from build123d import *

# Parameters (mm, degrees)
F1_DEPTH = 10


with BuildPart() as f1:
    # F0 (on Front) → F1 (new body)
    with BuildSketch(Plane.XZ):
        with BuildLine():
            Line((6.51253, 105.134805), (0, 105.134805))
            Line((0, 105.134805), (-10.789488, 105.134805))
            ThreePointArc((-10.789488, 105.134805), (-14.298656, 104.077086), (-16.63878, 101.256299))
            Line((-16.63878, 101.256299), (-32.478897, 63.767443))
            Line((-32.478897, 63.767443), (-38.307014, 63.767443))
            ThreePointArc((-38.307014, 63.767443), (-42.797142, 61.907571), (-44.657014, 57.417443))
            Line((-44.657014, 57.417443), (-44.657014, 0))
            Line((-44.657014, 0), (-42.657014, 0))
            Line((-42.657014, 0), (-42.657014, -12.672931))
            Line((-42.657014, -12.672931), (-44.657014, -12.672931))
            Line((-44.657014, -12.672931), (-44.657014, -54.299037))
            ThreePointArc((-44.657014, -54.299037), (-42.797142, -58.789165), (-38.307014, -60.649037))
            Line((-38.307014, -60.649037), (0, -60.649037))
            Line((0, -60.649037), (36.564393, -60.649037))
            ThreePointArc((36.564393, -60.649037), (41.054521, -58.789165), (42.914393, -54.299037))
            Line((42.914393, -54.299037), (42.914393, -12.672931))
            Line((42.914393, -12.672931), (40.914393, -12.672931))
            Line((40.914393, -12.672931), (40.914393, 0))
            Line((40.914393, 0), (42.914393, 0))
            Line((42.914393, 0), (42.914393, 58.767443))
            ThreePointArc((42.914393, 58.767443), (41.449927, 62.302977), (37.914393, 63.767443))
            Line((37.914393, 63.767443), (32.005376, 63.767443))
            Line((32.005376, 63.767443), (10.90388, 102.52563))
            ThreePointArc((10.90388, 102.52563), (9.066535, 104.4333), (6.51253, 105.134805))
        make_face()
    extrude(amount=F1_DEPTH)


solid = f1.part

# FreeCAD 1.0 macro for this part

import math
import FreeCAD as App
import Part
import Sketcher

V = App.Vector

doc = App.newDocument("Part")
body = doc.addObject("PartDesign::Body", "Body")

# Sketch on XZ plane
sketch1 = body.newObject("Sketcher::SketchObject", "Sketch")
sketch1.AttachmentSupport = (doc.getObject("XZ_Plane"), [""])
sketch1.MapMode = "FlatFace"
sketch1.addGeometry([
    Part.LineSegment(V(6.51253, 105.134805, 0), V(-10.789488, 105.134805, 0)),  # 0
    Part.ArcOfCircle(Part.Circle(V(-10.789488, 98.784804, 0), V(0, 0, 1), 6.350001), math.radians(90.000004), math.radians(157.094541)),  # 1
    Part.LineSegment(V(-16.63878, 101.256299, 0), V(-32.478897, 63.767443, 0)),  # 2
    Part.LineSegment(V(-32.478897, 63.767443, 0), V(-38.307014, 63.767443, 0)),  # 3
    Part.ArcOfCircle(Part.Circle(V(-38.307014, 57.417443, 0), V(0, 0, 1), 6.35), math.radians(90.000002), math.radians(179.999998)),  # 4
    Part.LineSegment(V(-44.657014, 57.417443, 0), V(-44.657014, 0, 0)),  # 5
    Part.LineSegment(V(-44.657014, 0, 0), V(-42.657014, 0, 0)),  # 6
    Part.LineSegment(V(-42.657014, 0, 0), V(-42.657014, -12.672931, 0)),  # 7
    Part.LineSegment(V(-42.657014, -12.672931, 0), V(-44.657014, -12.672931, 0)),  # 8
    Part.LineSegment(V(-44.657014, -12.672931, 0), V(-44.657014, -54.299037, 0)),  # 9
    Part.ArcOfCircle(Part.Circle(V(-38.307014, -54.299037, 0), V(0, 0, 1), 6.35), math.radians(-179.999998), math.radians(-90.000002)),  # 10
    Part.LineSegment(V(-38.307014, -60.649037, 0), V(36.564393, -60.649037, 0)),  # 11
    Part.ArcOfCircle(Part.Circle(V(36.564393, -54.299037, 0), V(0, 0, 1), 6.35), math.radians(-89.999998), math.radians(-0.000002)),  # 12
    Part.LineSegment(V(42.914393, -54.299037, 0), V(42.914393, -12.672931, 0)),  # 13
    Part.LineSegment(V(42.914393, -12.672931, 0), V(40.914393, -12.672931, 0)),  # 14
    Part.LineSegment(V(40.914393, -12.672931, 0), V(40.914393, 0, 0)),  # 15
    Part.LineSegment(V(40.914393, 0, 0), V(42.914393, 0, 0)),  # 16
    Part.LineSegment(V(42.914393, 0, 0), V(42.914393, 58.767443, 0)),  # 17
    Part.ArcOfCircle(Part.Circle(V(37.914393, 58.767443, 0), V(0, 0, 1), 5), math.radians(-0.000004), math.radians(90.000004)),  # 18
    Part.LineSegment(V(37.914393, 63.767443, 0), V(32.005376, 63.767443, 0)),  # 19
    Part.LineSegment(V(32.005376, 63.767443, 0), V(10.90388, 102.52563, 0)),  # 20
    Part.ArcOfCircle(Part.Circle(V(6.51253, 100.134806, 0), V(0, 0, 1), 4.999999), math.radians(28.565618), math.radians(90.000004)),  # 21
], False)
sketch1.addConstraint([
    Sketcher.Constraint("Tangent", 0, 2, 1, 1),
    Sketcher.Constraint("Tangent", 1, 2, 2, 1),
    Sketcher.Constraint("Coincident", 2, 2, 3, 1),
    Sketcher.Constraint("Tangent", 3, 2, 4, 1),
    Sketcher.Constraint("Tangent", 4, 2, 5, 1),
    Sketcher.Constraint("Coincident", 5, 2, 6, 1),
    Sketcher.Constraint("Coincident", 6, 2, 7, 1),
    Sketcher.Constraint("Coincident", 7, 2, 8, 1),
    Sketcher.Constraint("Coincident", 8, 2, 9, 1),
    Sketcher.Constraint("Tangent", 9, 2, 10, 1),
    Sketcher.Constraint("Tangent", 10, 2, 11, 1),
    Sketcher.Constraint("Tangent", 11, 2, 12, 1),
    Sketcher.Constraint("Tangent", 12, 2, 13, 1),
    Sketcher.Constraint("Coincident", 13, 2, 14, 1),
    Sketcher.Constraint("Coincident", 14, 2, 15, 1),
    Sketcher.Constraint("Coincident", 15, 2, 16, 1),
    Sketcher.Constraint("Coincident", 16, 2, 17, 1),
    Sketcher.Constraint("Tangent", 17, 2, 18, 1),
    Sketcher.Constraint("Tangent", 18, 2, 19, 1),
    Sketcher.Constraint("Coincident", 19, 2, 20, 1),
    Sketcher.Constraint("Tangent", 20, 2, 21, 1),
    Sketcher.Constraint("Tangent", 21, 2, 0, 1),
    Sketcher.Constraint("Horizontal", 0),
    Sketcher.Constraint("Horizontal", 3),
    Sketcher.Constraint("Vertical", 5),
    Sketcher.Constraint("Horizontal", 6),
    Sketcher.Constraint("Vertical", 7),
    Sketcher.Constraint("Horizontal", 8),
    Sketcher.Constraint("Vertical", 9),
    Sketcher.Constraint("Horizontal", 11),
    Sketcher.Constraint("Vertical", 13),
    Sketcher.Constraint("Horizontal", 14),
    Sketcher.Constraint("Vertical", 15),
    Sketcher.Constraint("Horizontal", 16),
    Sketcher.Constraint("Vertical", 17),
    Sketcher.Constraint("Horizontal", 19),
    Sketcher.Constraint("Equal", 1, 4),
    Sketcher.Constraint("Equal", 4, 10),
    Sketcher.Constraint("Equal", 10, 12),
    Sketcher.Constraint("Equal", 18, 21),
    Sketcher.Constraint("PointOnObject", 5, 2, -1),
    Sketcher.Constraint("PointOnObject", 15, 2, -1),
    Sketcher.Constraint("Horizontal", 8, 2, 13, 2),
    Sketcher.Constraint("Horizontal", 3, 2, 18, 2),
    Sketcher.Constraint("Vertical", 4, 3, 10, 3),
    Sketcher.Constraint("Vertical", 13, 2, 16, 2),
    Sketcher.Constraint("Equal", 8, 14),
    Sketcher.Constraint("Radius", 18, 5.0),
    Sketcher.Constraint("DistanceX", 6, 1, 6, 2, 2.0),
    Sketcher.Constraint("Radius", 1, 6.350001),
    Sketcher.Constraint("DistanceX", 0, 2, 0, 1, 17.302018),
    Sketcher.Constraint("DistanceY", 7, 2, 7, 1, 12.672931),
    Sketcher.Constraint("DistanceY", -1, 1, 1, 2, 101.256299),
    Sketcher.Constraint("Distance", 20, 44.130151),
    Sketcher.Constraint("DistanceX", 3, 2, 3, 1, 5.828117),
    Sketcher.Constraint("DistanceX", 11, 1, 11, 2, 74.871407),
    Sketcher.Constraint("DistanceX", 19, 2, 19, 1, 5.909017),
    Sketcher.Constraint("DistanceY", 5, 2, 5, 1, 57.417443),
    Sketcher.Constraint("DistanceY", 9, 2, 9, 1, 41.626106),
    Sketcher.Constraint("DistanceX", -1, 1, 21, 3, 6.51253),
])
pad1 = body.newObject("PartDesign::Pad", "Pad")
pad1.Profile = sketch1
pad1.Length = 10

doc.recompute()
